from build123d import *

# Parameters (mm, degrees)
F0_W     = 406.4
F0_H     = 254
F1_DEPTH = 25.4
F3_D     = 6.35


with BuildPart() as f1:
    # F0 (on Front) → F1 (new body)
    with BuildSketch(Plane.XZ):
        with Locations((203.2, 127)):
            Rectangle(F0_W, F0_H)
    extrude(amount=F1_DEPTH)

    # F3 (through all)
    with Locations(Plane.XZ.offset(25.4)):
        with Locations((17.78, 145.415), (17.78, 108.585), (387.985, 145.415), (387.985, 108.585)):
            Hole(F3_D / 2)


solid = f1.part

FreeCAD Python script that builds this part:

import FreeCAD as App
import Part
import Sketcher
from FreeCAD import Vector
Q = App.Units.Quantity

doc = App.newDocument("Part")
body = doc.addObject("PartDesign::Body", "Body")

# Sketch on XZ plane
sketch1 = body.newObject("Sketcher::SketchObject", "Sketch")
sketch1.AttachmentSupport = (doc.getObject("XZ_Plane"), [""])
sketch1.MapMode = "FlatFace"
sketch1.addGeometry([
    Part.LineSegment(Vector(0, 254, 0), Vector(0, 0, 0)),
    Part.LineSegment(Vector(0, 0, 0), Vector(406, 0, 0)),
    Part.LineSegment(Vector(406, 0, 0), Vector(406, 254, 0)),
    Part.LineSegment(Vector(406, 254, 0), Vector(0, 254, 0)),
], False)
sketch1.addConstraint([
    Sketcher.Constraint("Coincident", 0, 2, 1, 1),
    Sketcher.Constraint("Coincident", 1, 2, 2, 1),
    Sketcher.Constraint("Coincident", 2, 2, 3, 1),
    Sketcher.Constraint("Coincident", 3, 2, 0, 1),
    Sketcher.Constraint("Vertical", 0),
    Sketcher.Constraint("Horizontal", 1),
    Sketcher.Constraint("Vertical", 2),
    Sketcher.Constraint("Horizontal", 3),
    Sketcher.Constraint("Coincident", 0, 2, -1, 1),
    Sketcher.Constraint("DistanceX", 1, 1, 1, 2, Q("16 in")),
    Sketcher.Constraint("DistanceY", 0, 2, 0, 1, Q("10 in")),
])
pad1 = body.newObject("PartDesign::Pad", "Pad")
pad1.Profile = sketch1
pad1.Length = Q("1 in")

# Sketch on XZ plane
sketch2 = body.newObject("Sketcher::SketchObject", "Sketch001")
sketch2.AttachmentSupport = (doc.getObject("XZ_Plane"), [""])
sketch2.MapMode = "FlatFace"
sketch2.AttachmentOffset = App.Placement(Vector(0, 0, 1 * 25.4), App.Rotation())
sketch2.addGeometry([
    Part.Circle(Vector(17.8, 145.4, 0), Vector(0, 0, 1), 3.2),
    Part.Circle(Vector(17.8, 108.6, 0), Vector(0, 0, 1), 3.2),
    Part.Circle(Vector(388, 145.4, 0), Vector(0, 0, 1), 3.2),
    Part.Circle(Vector(388, 108.6, 0), Vector(0, 0, 1), 3.2),
], False)
sketch2.addConstraint([
    Sketcher.Constraint("Equal", 0, 1),
    Sketcher.Constraint("Equal", 1, 2),
    Sketcher.Constraint("Equal", 2, 3),
    Sketcher.Constraint("Horizontal", 0, 3, 2, 3),
    Sketcher.Constraint("Horizontal", 1, 3, 3, 3),
    Sketcher.Constraint("Vertical", 0, 3, 1, 3),
    Sketcher.Constraint("Vertical", 2, 3, 3, 3),
    Sketcher.Constraint("Diameter", 0, Q("0.25 in")),
    Sketcher.Constraint("DistanceX", -1, 1, 0, 3, Q("0.7 in")),
    Sketcher.Constraint("DistanceY", 1, 3, 0, 3, Q("1.45 in")),
    Sketcher.Constraint("DistanceY", -1, 1, 0, 3, Q("5.725 in")),
    Sketcher.Constraint("DistanceX", -1, 1, 2, 3, Q("15.275 in")),
])
doc.recompute()
hole = body.newObject("PartDesign::Hole", "Hole")
hole.Profile = sketch2
hole.ThreadType = "None"
hole.Diameter = Q("0.25 in")
hole.DepthType = "ThroughAll"

doc.recompute()
